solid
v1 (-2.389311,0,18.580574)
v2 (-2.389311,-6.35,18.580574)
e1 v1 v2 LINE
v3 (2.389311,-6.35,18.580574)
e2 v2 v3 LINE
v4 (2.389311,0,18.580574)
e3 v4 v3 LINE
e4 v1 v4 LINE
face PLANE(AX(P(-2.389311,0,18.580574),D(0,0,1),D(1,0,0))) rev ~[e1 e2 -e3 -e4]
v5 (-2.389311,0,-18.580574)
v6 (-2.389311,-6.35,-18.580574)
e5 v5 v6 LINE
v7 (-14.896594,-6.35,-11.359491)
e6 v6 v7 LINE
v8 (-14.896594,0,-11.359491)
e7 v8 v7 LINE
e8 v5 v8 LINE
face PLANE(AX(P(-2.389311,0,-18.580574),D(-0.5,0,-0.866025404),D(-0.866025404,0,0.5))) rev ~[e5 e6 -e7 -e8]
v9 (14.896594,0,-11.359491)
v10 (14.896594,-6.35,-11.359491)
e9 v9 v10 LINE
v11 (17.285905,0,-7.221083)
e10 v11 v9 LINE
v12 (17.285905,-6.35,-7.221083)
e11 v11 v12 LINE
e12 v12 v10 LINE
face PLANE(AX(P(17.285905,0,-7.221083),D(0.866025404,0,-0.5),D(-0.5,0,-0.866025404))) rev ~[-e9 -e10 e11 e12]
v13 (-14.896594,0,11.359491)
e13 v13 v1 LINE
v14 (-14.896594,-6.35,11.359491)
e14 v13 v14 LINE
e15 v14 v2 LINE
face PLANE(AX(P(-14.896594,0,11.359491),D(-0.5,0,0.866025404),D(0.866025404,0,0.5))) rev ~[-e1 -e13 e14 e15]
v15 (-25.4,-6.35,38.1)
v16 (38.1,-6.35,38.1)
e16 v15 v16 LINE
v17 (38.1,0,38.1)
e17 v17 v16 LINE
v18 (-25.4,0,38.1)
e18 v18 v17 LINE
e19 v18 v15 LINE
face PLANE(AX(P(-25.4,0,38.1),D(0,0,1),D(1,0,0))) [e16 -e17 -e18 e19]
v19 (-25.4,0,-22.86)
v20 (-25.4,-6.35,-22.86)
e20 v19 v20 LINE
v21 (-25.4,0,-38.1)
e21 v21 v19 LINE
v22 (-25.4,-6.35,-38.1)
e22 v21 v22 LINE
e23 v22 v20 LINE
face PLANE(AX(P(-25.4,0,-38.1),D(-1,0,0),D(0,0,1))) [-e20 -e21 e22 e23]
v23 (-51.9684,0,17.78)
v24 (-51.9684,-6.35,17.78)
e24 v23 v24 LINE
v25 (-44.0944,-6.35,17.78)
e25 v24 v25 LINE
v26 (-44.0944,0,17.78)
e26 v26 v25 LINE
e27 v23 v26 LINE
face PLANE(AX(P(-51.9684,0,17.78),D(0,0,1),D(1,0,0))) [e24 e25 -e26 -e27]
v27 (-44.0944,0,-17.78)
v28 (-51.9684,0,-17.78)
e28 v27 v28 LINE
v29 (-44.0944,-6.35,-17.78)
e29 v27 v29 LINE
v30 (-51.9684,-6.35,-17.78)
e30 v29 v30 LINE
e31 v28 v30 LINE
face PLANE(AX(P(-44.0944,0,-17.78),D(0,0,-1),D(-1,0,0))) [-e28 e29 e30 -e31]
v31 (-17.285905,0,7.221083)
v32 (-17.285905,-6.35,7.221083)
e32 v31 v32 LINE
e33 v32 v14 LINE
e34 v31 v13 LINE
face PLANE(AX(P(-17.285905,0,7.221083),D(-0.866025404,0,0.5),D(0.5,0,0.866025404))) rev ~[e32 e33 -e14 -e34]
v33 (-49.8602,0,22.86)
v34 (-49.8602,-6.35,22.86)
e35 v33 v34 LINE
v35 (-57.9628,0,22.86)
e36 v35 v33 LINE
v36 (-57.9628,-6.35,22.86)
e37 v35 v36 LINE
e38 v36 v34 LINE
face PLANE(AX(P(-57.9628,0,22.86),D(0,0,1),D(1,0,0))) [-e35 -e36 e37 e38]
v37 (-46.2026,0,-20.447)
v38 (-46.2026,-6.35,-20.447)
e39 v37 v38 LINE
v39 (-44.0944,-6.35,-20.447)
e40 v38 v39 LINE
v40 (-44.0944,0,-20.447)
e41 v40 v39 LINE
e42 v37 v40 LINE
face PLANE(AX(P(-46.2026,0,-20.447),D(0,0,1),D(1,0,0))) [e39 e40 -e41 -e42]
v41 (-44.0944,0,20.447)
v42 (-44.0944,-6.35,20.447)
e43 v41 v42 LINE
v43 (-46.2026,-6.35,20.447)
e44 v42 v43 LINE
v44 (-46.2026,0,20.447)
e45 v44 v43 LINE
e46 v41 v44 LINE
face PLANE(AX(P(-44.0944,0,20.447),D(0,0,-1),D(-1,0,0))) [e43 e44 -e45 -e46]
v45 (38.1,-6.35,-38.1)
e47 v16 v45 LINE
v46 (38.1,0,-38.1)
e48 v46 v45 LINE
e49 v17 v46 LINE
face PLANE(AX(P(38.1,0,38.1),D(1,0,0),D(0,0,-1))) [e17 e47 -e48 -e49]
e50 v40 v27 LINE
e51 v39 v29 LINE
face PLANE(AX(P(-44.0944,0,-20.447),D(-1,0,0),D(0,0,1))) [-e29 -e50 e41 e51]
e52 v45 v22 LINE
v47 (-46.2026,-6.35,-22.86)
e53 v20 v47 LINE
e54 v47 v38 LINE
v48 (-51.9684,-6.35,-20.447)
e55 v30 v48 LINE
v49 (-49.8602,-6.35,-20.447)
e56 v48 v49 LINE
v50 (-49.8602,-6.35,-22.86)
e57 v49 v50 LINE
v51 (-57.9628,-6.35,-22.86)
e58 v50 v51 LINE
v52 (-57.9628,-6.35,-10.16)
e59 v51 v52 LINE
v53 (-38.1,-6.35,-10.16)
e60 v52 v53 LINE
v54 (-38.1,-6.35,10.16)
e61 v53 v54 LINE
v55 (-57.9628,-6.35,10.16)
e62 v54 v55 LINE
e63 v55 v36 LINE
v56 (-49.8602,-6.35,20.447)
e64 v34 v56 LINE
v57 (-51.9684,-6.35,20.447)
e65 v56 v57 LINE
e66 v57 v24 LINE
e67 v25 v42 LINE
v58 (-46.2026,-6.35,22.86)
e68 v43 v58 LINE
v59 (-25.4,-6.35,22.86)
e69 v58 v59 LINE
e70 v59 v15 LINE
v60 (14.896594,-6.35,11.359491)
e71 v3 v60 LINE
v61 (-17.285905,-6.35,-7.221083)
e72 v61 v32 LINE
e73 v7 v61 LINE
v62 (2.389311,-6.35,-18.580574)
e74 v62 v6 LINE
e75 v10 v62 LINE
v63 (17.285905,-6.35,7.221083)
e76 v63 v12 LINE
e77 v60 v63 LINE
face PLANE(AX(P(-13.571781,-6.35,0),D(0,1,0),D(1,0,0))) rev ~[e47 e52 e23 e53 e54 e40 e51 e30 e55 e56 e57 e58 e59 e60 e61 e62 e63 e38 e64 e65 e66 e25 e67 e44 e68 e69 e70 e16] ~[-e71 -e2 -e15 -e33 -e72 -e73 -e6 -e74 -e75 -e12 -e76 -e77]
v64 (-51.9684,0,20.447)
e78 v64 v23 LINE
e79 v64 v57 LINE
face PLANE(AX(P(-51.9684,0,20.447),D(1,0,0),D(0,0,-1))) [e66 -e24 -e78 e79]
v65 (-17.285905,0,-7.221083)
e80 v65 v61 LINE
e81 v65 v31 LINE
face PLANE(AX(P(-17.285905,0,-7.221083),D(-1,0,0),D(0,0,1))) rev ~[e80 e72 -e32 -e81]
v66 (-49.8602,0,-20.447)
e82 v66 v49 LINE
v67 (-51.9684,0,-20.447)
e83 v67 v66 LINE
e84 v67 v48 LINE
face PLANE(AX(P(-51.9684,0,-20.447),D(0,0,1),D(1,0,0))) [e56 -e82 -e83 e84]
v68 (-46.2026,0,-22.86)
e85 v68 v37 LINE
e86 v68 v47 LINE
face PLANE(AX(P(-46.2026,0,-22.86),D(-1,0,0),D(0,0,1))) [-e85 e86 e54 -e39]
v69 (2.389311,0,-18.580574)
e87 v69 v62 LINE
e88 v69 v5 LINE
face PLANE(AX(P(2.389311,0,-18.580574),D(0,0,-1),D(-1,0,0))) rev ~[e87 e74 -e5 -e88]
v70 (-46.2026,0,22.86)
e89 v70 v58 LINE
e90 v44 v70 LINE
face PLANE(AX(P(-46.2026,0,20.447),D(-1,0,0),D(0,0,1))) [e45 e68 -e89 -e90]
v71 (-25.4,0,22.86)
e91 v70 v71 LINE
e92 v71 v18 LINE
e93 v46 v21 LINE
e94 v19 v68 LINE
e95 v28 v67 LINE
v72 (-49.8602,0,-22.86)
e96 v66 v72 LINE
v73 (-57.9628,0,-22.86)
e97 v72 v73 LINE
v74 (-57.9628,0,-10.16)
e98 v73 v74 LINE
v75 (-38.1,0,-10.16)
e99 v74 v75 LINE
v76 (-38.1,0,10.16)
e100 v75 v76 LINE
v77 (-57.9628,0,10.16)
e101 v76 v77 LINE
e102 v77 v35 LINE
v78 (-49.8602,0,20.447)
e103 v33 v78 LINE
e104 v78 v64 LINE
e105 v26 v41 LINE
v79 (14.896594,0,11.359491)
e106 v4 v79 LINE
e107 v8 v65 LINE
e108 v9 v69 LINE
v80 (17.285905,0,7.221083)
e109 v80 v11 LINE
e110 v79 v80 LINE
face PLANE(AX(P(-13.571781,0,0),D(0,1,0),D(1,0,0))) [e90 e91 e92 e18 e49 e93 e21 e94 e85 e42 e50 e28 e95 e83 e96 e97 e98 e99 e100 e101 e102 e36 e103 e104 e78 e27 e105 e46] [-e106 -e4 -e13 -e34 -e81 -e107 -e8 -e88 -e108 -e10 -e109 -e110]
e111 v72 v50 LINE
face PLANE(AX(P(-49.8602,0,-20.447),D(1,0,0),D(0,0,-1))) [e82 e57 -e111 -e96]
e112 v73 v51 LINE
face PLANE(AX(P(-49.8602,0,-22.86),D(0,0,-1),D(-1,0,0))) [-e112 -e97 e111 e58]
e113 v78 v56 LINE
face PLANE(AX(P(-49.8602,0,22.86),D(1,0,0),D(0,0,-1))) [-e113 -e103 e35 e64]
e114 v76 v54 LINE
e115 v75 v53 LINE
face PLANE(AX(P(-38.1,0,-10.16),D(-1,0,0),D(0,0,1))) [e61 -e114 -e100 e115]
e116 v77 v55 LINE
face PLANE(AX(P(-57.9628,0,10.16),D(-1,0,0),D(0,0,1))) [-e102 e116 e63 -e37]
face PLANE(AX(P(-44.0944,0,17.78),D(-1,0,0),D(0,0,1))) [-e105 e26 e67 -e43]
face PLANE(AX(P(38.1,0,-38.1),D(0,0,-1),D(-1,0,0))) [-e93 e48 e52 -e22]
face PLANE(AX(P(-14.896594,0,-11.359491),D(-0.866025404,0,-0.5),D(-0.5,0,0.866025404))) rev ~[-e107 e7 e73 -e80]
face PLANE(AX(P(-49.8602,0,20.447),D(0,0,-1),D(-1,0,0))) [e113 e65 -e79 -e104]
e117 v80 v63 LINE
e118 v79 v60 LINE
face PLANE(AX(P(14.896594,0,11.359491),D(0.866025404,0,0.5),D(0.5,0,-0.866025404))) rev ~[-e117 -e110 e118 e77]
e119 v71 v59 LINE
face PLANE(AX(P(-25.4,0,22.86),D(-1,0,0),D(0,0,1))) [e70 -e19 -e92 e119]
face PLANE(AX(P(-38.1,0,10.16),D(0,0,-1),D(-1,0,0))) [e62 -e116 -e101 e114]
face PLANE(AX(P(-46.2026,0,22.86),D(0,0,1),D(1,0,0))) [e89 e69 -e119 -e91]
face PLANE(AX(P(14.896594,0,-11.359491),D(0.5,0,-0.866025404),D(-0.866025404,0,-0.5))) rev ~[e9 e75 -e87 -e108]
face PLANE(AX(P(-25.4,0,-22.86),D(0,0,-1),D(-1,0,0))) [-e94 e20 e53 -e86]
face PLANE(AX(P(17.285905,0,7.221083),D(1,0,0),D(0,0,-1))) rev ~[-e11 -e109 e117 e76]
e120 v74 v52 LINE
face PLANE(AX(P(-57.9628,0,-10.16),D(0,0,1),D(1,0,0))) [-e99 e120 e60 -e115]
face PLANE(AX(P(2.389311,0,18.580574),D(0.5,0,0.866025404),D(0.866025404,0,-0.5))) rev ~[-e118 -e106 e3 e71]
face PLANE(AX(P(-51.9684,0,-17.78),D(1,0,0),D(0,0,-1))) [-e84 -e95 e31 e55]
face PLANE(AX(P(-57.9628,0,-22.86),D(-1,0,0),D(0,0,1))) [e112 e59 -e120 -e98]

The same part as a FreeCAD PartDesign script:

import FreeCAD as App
import Part
import Sketcher

V = App.Vector
Q = App.Units.Quantity

doc = App.newDocument("Part")
params = doc.addObject("Spreadsheet::Sheet", "Params")
for row, (alias, value) in enumerate([
    ("sketch1_height", "3 in"),
    ("sketch1_width", "2.5 in"),
    ("sketch1_height2", "0.6 in"),
    ("sketch1_height3", "0.5 in"),
    ("sketch1_width2", "0.31 in"),
    ("pad1_length", "0.25 in"),
], start=1):
    params.set(f"A{row}", alias)
    params.set(f"B{row}", "=" + value)
    params.setAlias(f"B{row}", alias)

body = doc.addObject("PartDesign::Body", "Body")

sketch1 = body.newObject("Sketcher::SketchObject", "Sketch")
sketch1.AttachmentSupport = (doc.getObject("XZ_Plane"), [""])
sketch1.MapMode = "FlatFace"
sketch1.addGeometry([
    Part.LineSegment(V(-25.4, 38.1, 0), V(38.1, 38.1, 0)),
    Part.LineSegment(V(38.1, 38.1, 0), V(38.1, -38.1, 0)),
    Part.LineSegment(V(38.1, -38.1, 0), V(-25.4, -38.1, 0)),
    Part.LineSegment(V(-25.4, -38.1, 0), V(-25.4, -22.9, 0)),
    Part.LineSegment(V(-25.4, -22.9, 0), V(-46.2, -22.9, 0)),
    Part.LineSegment(V(-46.2, -22.9, 0), V(-46.2, -20.4, 0)),
    Part.LineSegment(V(-46.2, -20.4, 0), V(-44.1, -20.4, 0)),
    Part.LineSegment(V(-44.1, -20.4, 0), V(-44.1, -17.8, 0)),
    Part.LineSegment(V(-44.1, -17.8, 0), V(-52, -17.8, 0)),
    Part.LineSegment(V(-52, -17.8, 0), V(-52, -20.4, 0)),
    Part.LineSegment(V(-52, -20.4, 0), V(-49.9, -20.4, 0)),
    Part.LineSegment(V(-49.9, -20.4, 0), V(-49.9, -22.9, 0)),
    Part.LineSegment(V(-49.9, -22.9, 0), V(-58, -22.9, 0)),
    Part.LineSegment(V(-58, -22.9, 0), V(-58, -10.2, 0)),
    Part.LineSegment(V(-58, -10.2, 0), V(-38.1, -10.2, 0)),
    Part.LineSegment(V(-38.1, -10.2, 0), V(-38.1, 10.2, 0)),
    Part.LineSegment(V(-38.1, 10.2, 0), V(-58, 10.2, 0)),
    Part.LineSegment(V(-58, 10.2, 0), V(-58, 22.9, 0)),
    Part.LineSegment(V(-58, 22.9, 0), V(-49.9, 22.9, 0)),
    Part.LineSegment(V(-49.9, 22.9, 0), V(-49.9, 20.4, 0)),
    Part.LineSegment(V(-49.9, 20.4, 0), V(-52, 20.4, 0)),
    Part.LineSegment(V(-52, 20.4, 0), V(-52, 17.8, 0)),
    Part.LineSegment(V(-52, 17.8, 0), V(-44.1, 17.8, 0)),
    Part.LineSegment(V(-44.1, 17.8, 0), V(-44.1, 20.4, 0)),
    Part.LineSegment(V(-44.1, 20.4, 0), V(-46.2, 20.4, 0)),
    Part.LineSegment(V(-46.2, 20.4, 0), V(-46.2, 22.9, 0)),
    Part.LineSegment(V(-46.2, 22.9, 0), V(-25.4, 22.9, 0)),
    Part.LineSegment(V(-25.4, 22.9, 0), V(-25.4, 38.1, 0)),
    Part.LineSegment(V(2.4, 18.6, 0), V(-2.4, 18.6, 0)),
    Part.LineSegment(V(-2.4, 18.6, 0), V(-14.9, 11.4, 0)),
    Part.LineSegment(V(-14.9, 11.4, 0), V(-17.3, 7.2, 0)),
    Part.LineSegment(V(-17.3, 7.2, 0), V(-17.3, -7.2, 0)),
    Part.LineSegment(V(-17.3, -7.2, 0), V(-14.9, -11.4, 0)),
    Part.LineSegment(V(-14.9, -11.4, 0), V(-2.4, -18.6, 0)),
    Part.LineSegment(V(-2.4, -18.6, 0), V(2.4, -18.6, 0)),
    Part.LineSegment(V(2.4, -18.6, 0), V(14.9, -11.4, 0)),
    Part.LineSegment(V(14.9, -11.4, 0), V(17.3, -7.2, 0)),
    Part.LineSegment(V(17.3, -7.2, 0), V(17.3, 7.2, 0)),
    Part.LineSegment(V(17.3, 7.2, 0), V(14.9, 11.4, 0)),
    Part.LineSegment(V(14.9, 11.4, 0), V(2.4, 18.6, 0)),
], False)
sketch1.addConstraint([
    Sketcher.Constraint("Coincident", 0, 2, 1, 1),
    Sketcher.Constraint("Coincident", 1, 2, 2, 1),
    Sketcher.Constraint("Coincident", 2, 2, 3, 1),
    Sketcher.Constraint("Coincident", 3, 2, 4, 1),
    Sketcher.Constraint("Coincident", 4, 2, 5, 1),
    Sketcher.Constraint("Coincident", 5, 2, 6, 1),
    Sketcher.Constraint("Coincident", 6, 2, 7, 1),
    Sketcher.Constraint("Coincident", 7, 2, 8, 1),
    Sketcher.Constraint("Coincident", 8, 2, 9, 1),
    Sketcher.Constraint("Coincident", 9, 2, 10, 1),
    Sketcher.Constraint("Coincident", 10, 2, 11, 1),
    Sketcher.Constraint("Coincident", 11, 2, 12, 1),
    Sketcher.Constraint("Coincident", 12, 2, 13, 1),
    Sketcher.Constraint("Coincident", 13, 2, 14, 1),
    Sketcher.Constraint("Coincident", 14, 2, 15, 1),
    Sketcher.Constraint("Coincident", 15, 2, 16, 1),
    Sketcher.Constraint("Coincident", 16, 2, 17, 1),
    Sketcher.Constraint("Coincident", 17, 2, 18, 1),
    Sketcher.Constraint("Coincident", 18, 2, 19, 1),
    Sketcher.Constraint("Coincident", 19, 2, 20, 1),
    Sketcher.Constraint("Coincident", 20, 2, 21, 1),
    Sketcher.Constraint("Coincident", 21, 2, 22, 1),
    Sketcher.Constraint("Coincident", 22, 2, 23, 1),
    Sketcher.Constraint("Coincident", 23, 2, 24, 1),
    Sketcher.Constraint("Coincident", 24, 2, 25, 1),
    Sketcher.Constraint("Coincident", 25, 2, 26, 1),
    Sketcher.Constraint("Coincident", 26, 2, 27, 1),
    Sketcher.Constraint("Coincident", 27, 2, 0, 1),
    Sketcher.Constraint("Coincident", 28, 2, 29, 1),
    Sketcher.Constraint("Coincident", 29, 2, 30, 1),
    Sketcher.Constraint("Coincident", 30, 2, 31, 1),
    Sketcher.Constraint("Coincident", 31, 2, 32, 1),
    Sketcher.Constraint("Coincident", 32, 2, 33, 1),
    Sketcher.Constraint("Coincident", 33, 2, 34, 1),
    Sketcher.Constraint("Coincident", 34, 2, 35, 1),
    Sketcher.Constraint("Coincident", 35, 2, 36, 1),
    Sketcher.Constraint("Coincident", 36, 2, 37, 1),
    Sketcher.Constraint("Coincident", 37, 2, 38, 1),
    Sketcher.Constraint("Coincident", 38, 2, 39, 1),
    Sketcher.Constraint("Coincident", 39, 2, 28, 1),
    Sketcher.Constraint("Horizontal", 0),
    Sketcher.Constraint("Vertical", 1),
    Sketcher.Constraint("Horizontal", 2),
    Sketcher.Constraint("Vertical", 3),
    Sketcher.Constraint("Horizontal", 4),
    Sketcher.Constraint("Vertical", 5),
    Sketcher.Constraint("Horizontal", 6),
    Sketcher.Constraint("Vertical", 7),
    Sketcher.Constraint("Horizontal", 8),
    Sketcher.Constraint("Vertical", 9),
    Sketcher.Constraint("Horizontal", 10),
    Sketcher.Constraint("Vertical", 11),
    Sketcher.Constraint("Horizontal", 12),
    Sketcher.Constraint("Vertical", 13),
    Sketcher.Constraint("Horizontal", 14),
    Sketcher.Constraint("Vertical", 15),
    Sketcher.Constraint("Horizontal", 16),
    Sketcher.Constraint("Vertical", 17),
    Sketcher.Constraint("Horizontal", 18),
    Sketcher.Constraint("Vertical", 19),
    Sketcher.Constraint("Horizontal", 20),
    Sketcher.Constraint("Vertical", 21),
    Sketcher.Constraint("Horizontal", 22),
    Sketcher.Constraint("Vertical", 23),
    Sketcher.Constraint("Horizontal", 24),
    Sketcher.Constraint("Vertical", 25),
    Sketcher.Constraint("Horizontal", 26),
    Sketcher.Constraint("Vertical", 27),
    Sketcher.Constraint("Horizontal", 28),
    Sketcher.Constraint("Vertical", 31),
    Sketcher.Constraint("Horizontal", 34),
    Sketcher.Constraint("Vertical", 37),
    Sketcher.Constraint("Symmetric", 28, 2, 34, 2, -1, 1),
    Sketcher.Constraint("Symmetric", 29, 2, 35, 2, -1, 1),
    Sketcher.Constraint("Symmetric", 30, 2, 36, 2, -1, 1),
    Sketcher.Constraint("Symmetric", 32, 2, 38, 2, -1, 1),
    Sketcher.Constraint("Symmetric", 32, 2, 35, 2, -2),
    Sketcher.Constraint("Symmetric", 13, 2, 16, 2, -1),
    Sketcher.Constraint("Symmetric", 11, 2, 18, 2, -1),
    Sketcher.Constraint("Symmetric", 9, 2, 20, 2, -1),
    Sketcher.Constraint("Symmetric", 7, 2, 22, 2, -1),
    Sketcher.Constraint("Symmetric", 5, 2, 24, 2, -1),
    Sketcher.Constraint("Symmetric", 3, 2, 26, 2, -1),
    Sketcher.Constraint("Perpendicular", 29, 32),
    Sketcher.Constraint("Perpendicular", 30, 33),
    Sketcher.Constraint("Perpendicular", 35, 38),
    Sketcher.Constraint("Perpendicular", 36, 39),
    Sketcher.Constraint("Horizontal", 6, 2, 9, 2),
    Sketcher.Constraint("Horizontal", 4, 2, 11, 2),
    Sketcher.Constraint("Horizontal", 31, 2, 36, 2),
    Sketcher.Constraint("Equal", 6, 10),
    Sketcher.Constraint("Equal", 3, 27),
    Sketcher.Constraint("DistanceY", 1, 2, 1, 1, Q("3 in")),
    Sketcher.Constraint("DistanceX", 0, 1, 0, 2, Q("2.5 in")),
    Sketcher.Constraint("DistanceY", 3, 1, 3, 2, Q("0.6 in")),
    Sketcher.Constraint("DistanceY", 13, 1, 13, 2, Q("0.5 in")),
    Sketcher.Constraint("DistanceX", 2, 2, -1, 1, Q("1 in")),
    Sketcher.Constraint("Angle", 29, Q("-150 deg")),
    Sketcher.Constraint("DistanceX", 8, 2, 8, 1, Q("0.31 in")),
    Sketcher.Constraint("DistanceY", 7, 2, -1, 1, Q("0.7 in")),
    Sketcher.Constraint("DistanceX", 14, 2, -1, 1, Q("1.5 in")),
    Sketcher.Constraint("DistanceX", 4, 2, 4, 1, Q("0.819 in")),
    Sketcher.Constraint("DistanceX", 6, 1, 6, 2, Q("0.083 in")),
    Sketcher.Constraint("DistanceX", 12, 2, 12, 1, Q("0.319 in")),
    Sketcher.Constraint("DistanceY", 5, 1, 5, 2, Q("0.095 in")),
    Sketcher.Constraint("DistanceX", 28, 2, 28, 1, Q("4.778621 mm")),
    Sketcher.Constraint("DistanceX", 31, 2, 35, 2, Q("32.182499 mm")),
    Sketcher.Constraint("Distance", 30, Q("4.778621 mm")),
    Sketcher.Constraint("DistanceY", 31, 2, 31, 1, Q("14.442167 mm")),
])
sketch1.setExpression("Constraints[92]", "Params.sketch1_height")
sketch1.setExpression("Constraints[93]", "Params.sketch1_width")
sketch1.setExpression("Constraints[94]", "Params.sketch1_height2")
sketch1.setExpression("Constraints[95]", "Params.sketch1_height3")
sketch1.setExpression("Constraints[98]", "Params.sketch1_width2")
pad1 = body.newObject("PartDesign::Pad", "Pad")
pad1.Profile = sketch1
pad1.setExpression("Length", "Params.pad1_length")

doc.recompute()
